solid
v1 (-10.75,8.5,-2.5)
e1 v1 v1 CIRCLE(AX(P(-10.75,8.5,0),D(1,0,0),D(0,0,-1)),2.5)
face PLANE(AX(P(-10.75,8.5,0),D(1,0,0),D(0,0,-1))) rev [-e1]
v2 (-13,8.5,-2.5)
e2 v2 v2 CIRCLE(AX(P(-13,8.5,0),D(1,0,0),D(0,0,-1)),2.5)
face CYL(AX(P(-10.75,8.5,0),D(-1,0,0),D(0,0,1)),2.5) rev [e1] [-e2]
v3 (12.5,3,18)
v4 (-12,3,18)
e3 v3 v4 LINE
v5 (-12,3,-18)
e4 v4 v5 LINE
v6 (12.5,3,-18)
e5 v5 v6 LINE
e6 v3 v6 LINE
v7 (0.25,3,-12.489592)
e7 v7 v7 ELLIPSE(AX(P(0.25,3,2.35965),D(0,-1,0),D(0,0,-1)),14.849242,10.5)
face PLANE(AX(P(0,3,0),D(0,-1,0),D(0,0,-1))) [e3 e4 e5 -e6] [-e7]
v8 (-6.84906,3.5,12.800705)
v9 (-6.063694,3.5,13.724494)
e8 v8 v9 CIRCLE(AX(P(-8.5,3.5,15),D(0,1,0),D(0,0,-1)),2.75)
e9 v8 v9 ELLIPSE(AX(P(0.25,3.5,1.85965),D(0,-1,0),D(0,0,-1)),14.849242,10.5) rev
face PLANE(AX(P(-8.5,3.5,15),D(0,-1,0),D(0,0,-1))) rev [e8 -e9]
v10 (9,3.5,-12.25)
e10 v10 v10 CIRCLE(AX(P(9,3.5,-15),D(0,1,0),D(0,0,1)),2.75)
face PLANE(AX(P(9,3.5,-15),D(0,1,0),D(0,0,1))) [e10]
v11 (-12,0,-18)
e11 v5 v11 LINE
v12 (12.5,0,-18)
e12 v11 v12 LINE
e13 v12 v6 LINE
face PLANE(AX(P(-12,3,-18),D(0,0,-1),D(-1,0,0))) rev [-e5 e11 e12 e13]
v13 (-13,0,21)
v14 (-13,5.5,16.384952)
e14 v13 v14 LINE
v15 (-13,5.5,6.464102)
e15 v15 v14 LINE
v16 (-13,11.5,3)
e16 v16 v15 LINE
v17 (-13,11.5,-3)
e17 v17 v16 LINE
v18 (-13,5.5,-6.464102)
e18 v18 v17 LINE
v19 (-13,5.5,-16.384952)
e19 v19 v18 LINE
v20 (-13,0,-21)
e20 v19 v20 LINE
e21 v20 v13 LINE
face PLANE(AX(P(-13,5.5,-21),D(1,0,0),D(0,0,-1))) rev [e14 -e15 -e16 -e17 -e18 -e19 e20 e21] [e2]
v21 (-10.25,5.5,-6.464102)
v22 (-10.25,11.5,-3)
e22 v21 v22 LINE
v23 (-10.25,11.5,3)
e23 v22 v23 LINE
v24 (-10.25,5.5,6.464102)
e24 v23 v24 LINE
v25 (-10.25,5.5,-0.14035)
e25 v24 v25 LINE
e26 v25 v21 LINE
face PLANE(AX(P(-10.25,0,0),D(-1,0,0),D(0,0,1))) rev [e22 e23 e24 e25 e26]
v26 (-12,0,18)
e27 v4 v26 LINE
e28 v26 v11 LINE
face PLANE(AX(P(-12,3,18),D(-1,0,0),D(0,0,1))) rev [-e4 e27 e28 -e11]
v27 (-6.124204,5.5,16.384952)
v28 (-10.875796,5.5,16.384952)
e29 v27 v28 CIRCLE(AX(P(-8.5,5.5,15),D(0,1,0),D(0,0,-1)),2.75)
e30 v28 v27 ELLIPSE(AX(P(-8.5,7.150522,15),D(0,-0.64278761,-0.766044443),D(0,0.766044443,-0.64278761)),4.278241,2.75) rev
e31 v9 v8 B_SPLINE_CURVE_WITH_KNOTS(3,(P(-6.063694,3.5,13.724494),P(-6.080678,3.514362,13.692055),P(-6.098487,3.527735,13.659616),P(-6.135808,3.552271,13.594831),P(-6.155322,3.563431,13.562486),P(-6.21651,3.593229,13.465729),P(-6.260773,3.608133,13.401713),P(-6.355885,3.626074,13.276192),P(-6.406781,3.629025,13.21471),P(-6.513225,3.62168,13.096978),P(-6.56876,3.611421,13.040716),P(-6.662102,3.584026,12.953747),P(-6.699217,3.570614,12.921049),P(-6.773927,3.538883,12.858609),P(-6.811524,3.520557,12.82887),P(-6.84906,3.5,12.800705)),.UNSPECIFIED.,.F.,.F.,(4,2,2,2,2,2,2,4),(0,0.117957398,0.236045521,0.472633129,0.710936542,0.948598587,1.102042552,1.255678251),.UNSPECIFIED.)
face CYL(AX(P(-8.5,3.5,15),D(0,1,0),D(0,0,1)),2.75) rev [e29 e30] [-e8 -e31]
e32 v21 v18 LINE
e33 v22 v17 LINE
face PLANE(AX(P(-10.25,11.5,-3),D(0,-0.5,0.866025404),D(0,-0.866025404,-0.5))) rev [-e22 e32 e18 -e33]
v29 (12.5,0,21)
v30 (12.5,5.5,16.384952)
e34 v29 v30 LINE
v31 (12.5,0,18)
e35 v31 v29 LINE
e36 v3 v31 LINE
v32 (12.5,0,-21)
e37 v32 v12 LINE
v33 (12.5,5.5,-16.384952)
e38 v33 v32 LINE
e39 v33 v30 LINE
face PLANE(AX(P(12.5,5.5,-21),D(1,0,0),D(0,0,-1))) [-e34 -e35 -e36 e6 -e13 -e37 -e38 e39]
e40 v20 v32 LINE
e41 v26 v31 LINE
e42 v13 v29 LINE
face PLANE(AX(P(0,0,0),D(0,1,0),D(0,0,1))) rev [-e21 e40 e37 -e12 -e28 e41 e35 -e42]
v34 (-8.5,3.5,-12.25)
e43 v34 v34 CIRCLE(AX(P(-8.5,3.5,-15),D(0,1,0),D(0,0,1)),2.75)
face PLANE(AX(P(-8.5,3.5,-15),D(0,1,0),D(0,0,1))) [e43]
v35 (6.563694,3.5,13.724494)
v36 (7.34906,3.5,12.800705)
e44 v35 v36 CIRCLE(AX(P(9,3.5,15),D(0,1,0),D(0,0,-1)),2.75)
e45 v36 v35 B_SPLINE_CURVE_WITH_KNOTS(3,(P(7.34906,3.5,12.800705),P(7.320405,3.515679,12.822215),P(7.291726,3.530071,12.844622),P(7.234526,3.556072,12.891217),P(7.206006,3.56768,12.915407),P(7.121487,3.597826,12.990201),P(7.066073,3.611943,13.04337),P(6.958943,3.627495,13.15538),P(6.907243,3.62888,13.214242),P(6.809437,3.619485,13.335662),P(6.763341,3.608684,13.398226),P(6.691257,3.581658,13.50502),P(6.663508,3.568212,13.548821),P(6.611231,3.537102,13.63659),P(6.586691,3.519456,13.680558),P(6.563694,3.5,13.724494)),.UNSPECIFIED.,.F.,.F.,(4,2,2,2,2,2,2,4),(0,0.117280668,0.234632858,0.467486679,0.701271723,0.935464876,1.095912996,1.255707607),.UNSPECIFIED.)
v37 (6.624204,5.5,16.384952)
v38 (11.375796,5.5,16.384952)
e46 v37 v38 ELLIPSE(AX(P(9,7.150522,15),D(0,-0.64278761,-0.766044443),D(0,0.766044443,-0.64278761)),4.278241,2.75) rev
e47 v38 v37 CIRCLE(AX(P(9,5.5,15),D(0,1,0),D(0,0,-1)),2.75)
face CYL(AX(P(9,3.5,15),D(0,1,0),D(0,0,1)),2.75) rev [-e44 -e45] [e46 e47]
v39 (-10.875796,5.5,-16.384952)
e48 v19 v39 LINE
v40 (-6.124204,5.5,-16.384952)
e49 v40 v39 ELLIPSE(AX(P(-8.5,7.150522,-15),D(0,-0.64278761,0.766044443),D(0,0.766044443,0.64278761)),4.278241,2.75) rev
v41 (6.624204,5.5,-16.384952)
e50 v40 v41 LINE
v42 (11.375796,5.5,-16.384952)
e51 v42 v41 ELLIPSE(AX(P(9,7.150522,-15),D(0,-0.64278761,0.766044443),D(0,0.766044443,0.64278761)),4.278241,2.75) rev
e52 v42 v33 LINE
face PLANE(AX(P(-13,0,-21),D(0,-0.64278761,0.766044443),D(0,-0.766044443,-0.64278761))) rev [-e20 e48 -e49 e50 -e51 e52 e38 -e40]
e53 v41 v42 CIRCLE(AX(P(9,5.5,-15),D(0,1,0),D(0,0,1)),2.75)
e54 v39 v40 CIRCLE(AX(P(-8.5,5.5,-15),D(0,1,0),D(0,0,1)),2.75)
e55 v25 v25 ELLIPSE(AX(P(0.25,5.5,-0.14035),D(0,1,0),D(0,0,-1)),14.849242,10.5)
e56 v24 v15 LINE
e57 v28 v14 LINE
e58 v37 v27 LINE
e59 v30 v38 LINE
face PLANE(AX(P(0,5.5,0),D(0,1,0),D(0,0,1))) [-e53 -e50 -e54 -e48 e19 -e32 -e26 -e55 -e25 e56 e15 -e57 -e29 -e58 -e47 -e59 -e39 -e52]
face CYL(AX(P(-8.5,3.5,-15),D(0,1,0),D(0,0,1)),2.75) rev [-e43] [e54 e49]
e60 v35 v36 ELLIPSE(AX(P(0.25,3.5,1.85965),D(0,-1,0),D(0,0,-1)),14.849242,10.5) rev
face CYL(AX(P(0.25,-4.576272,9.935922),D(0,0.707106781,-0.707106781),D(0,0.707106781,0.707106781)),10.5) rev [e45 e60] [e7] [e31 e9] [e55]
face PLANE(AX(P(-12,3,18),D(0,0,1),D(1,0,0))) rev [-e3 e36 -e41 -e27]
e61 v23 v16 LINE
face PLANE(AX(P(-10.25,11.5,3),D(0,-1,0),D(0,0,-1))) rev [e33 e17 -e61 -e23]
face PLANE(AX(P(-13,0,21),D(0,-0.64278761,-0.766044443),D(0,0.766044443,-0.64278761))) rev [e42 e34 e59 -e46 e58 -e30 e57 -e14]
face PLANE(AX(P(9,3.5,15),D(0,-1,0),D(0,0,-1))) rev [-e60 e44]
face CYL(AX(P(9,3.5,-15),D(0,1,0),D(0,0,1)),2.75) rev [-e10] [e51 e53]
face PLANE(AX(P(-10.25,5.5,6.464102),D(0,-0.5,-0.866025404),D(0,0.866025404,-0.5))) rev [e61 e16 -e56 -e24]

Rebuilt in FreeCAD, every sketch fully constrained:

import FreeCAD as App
import Part
import Sketcher
from FreeCAD import Vector
Q = App.Units.Quantity


def add_polygon(sketch, points):
    """Adds a closed chain of lines whose ends are joined by coincident constraints."""
    first, n = sketch.GeometryCount, len(points)
    for a, b in zip(points, points[1:] + points[:1]):
        sketch.addGeometry(Part.LineSegment(App.Vector(*a, 0), App.Vector(*b, 0)), False)
    for i in range(n):
        sketch.addConstraint(Sketcher.Constraint("Coincident", first + i, 2, first + (i + 1) % n, 1))

doc = App.newDocument("Part")
body = doc.addObject("PartDesign::Body", "Body")

sketch1 = body.newObject("Sketcher::SketchObject", "Sketch")
sketch1.AttachmentSupport = (doc.getObject("XZ_Plane"), [""])
sketch1.MapMode = "FlatFace"
add_polygon(sketch1, [(-13, -21), (-13, 21), (12.5, 21), (12.5, -21)])
sketch1.addConstraint(Sketcher.Constraint("Vertical", 0))
sketch1.addConstraint(Sketcher.Constraint("Horizontal", 1))
sketch1.addConstraint(Sketcher.Constraint("Vertical", 2))
sketch1.addConstraint(Sketcher.Constraint("Horizontal", 3))
sketch1.addConstraint(Sketcher.Constraint("DistanceY", 0, 1, 0, 2, Q("42 mm")))
sketch1.addConstraint(Sketcher.Constraint("DistanceX", 1, 1, 1, 2, Q("25.5 mm")))
sketch1.addConstraint(Sketcher.Constraint("DistanceX", 0, 2, -1, 1, Q("13 mm")))
sketch1.addConstraint(Sketcher.Constraint("DistanceY", -1, 1, 0, 2, Q("21 mm")))
pad1 = body.newObject("PartDesign::Pad", "Pad")
pad1.Profile = sketch1
pad1.Length = 5.5
pad1.Reversed = True

sketch2 = body.newObject("Sketcher::SketchObject", "Sketch001")
sketch2.AttachmentSupport = (doc.getObject("XZ_Plane"), [""])
sketch2.MapMode = "FlatFace"
add_polygon(sketch2, [(-12, 18), (-12, -18), (13, -18), (13, 18)])
sketch2.addConstraint(Sketcher.Constraint("Vertical", 0))
sketch2.addConstraint(Sketcher.Constraint("Horizontal", 1))
sketch2.addConstraint(Sketcher.Constraint("Vertical", 2))
sketch2.addConstraint(Sketcher.Constraint("Horizontal", 3))
sketch2.addConstraint(Sketcher.Constraint("DistanceX", 1, 1, 1, 2, Q("25 mm")))
sketch2.addConstraint(Sketcher.Constraint("DistanceY", 0, 2, 0, 1, Q("36 mm")))
sketch2.addConstraint(Sketcher.Constraint("DistanceX", 0, 2, -1, 1, Q("12 mm")))
sketch2.addConstraint(Sketcher.Constraint("DistanceY", 0, 2, -1, 1, Q("18 mm")))
pocket1 = body.newObject("PartDesign::Pocket", "Pocket")
pocket1.Profile = sketch2
pocket1.Length = 3

sketch3 = body.newObject("Sketcher::SketchObject", "Sketch002")
sketch3.Placement = App.Placement(Vector(0, 13.25, -13.25), App.Rotation(Vector(1, 0, 0), Vector(0, -0.707106781, -0.707106781), Vector(0, 0.707106781, -0.707106781), "ZXY"))
sketch3.addGeometry(Part.Circle(Vector(0.25, -3.789845, 0), Vector(0, 0, 1), 10.5), False)
sketch3.addConstraint(Sketcher.Constraint("Diameter", 0, Q("21 mm")))
sketch3.addConstraint(Sketcher.Constraint("DistanceX", -1, 1, 0, 3, Q("0.25 mm")))
sketch3.addConstraint(Sketcher.Constraint("DistanceY", 0, 3, -1, 1, Q("3.789845 mm")))
pocket2 = body.newObject("PartDesign::Pocket", "Pocket001")
pocket2.Profile = sketch3
pocket2.Length = 29

sketch4 = body.newObject("Sketcher::SketchObject", "Sketch003")
sketch4.AttachmentSupport = (doc.getObject("XZ_Plane"), [""])
sketch4.MapMode = "FlatFace"
sketch4.AttachmentOffset = App.Placement(Vector(0, 0, -5.5), App.Rotation())
sketch4.addGeometry(Part.Circle(Vector(-8.5, -15, 0), Vector(0, 0, 1), 2.75), False)
sketch4.addGeometry(Part.Circle(Vector(9, -15, 0), Vector(0, 0, 1), 2.75), False)
sketch4.addGeometry(Part.Circle(Vector(-8.5, 15, 0), Vector(0, 0, 1), 2.75), False)
sketch4.addGeometry(Part.Circle(Vector(9, 15, 0), Vector(0, 0, 1), 2.75), False)
sketch4.addConstraint(Sketcher.Constraint("Equal", 0, 1))
sketch4.addConstraint(Sketcher.Constraint("Equal", 1, 2))
sketch4.addConstraint(Sketcher.Constraint("Equal", 2, 3))
sketch4.addConstraint(Sketcher.Constraint("Symmetric", 0, 3, 2, 3, -1))
sketch4.addConstraint(Sketcher.Constraint("Symmetric", 1, 3, 3, 3, -1))
sketch4.addConstraint(Sketcher.Constraint("Horizontal", 0, 3, 1, 3))
sketch4.addConstraint(Sketcher.Constraint("Diameter", 0, Q("5.5 mm")))
sketch4.addConstraint(Sketcher.Constraint("DistanceY", 0, 3, -1, 1, Q("15 mm")))
sketch4.addConstraint(Sketcher.Constraint("DistanceX", -1, 1, 1, 3, Q("9 mm")))
sketch4.addConstraint(Sketcher.Constraint("DistanceX", 0, 3, -1, 1, Q("8.5 mm")))
pocket3 = body.newObject("PartDesign::Pocket", "Pocket002")
pocket3.Profile = sketch4
pocket3.Length = 2
pocket3.Reversed = True

sketch5 = body.newObject("Sketcher::SketchObject", "Sketch004")
sketch5.AttachmentSupport = (doc.getObject("YZ_Plane"), [""])
sketch5.MapMode = "FlatFace"
add_polygon(sketch5, [(0, 21), (9.744012, 12.823803), (9.744012, 21)])
sketch5.addConstraint(Sketcher.Constraint("Vertical", 1))
sketch5.addConstraint(Sketcher.Constraint("Horizontal", 2))
sketch5.addConstraint(Sketcher.Constraint("PointOnObject", 2, 2, -2))
sketch5.addConstraint(Sketcher.Constraint("Angle", 0, Q("-40 deg")))
sketch5.addConstraint(Sketcher.Constraint("DistanceY", -1, 1, 1, 2, Q("21 mm")))
sketch5.addConstraint(Sketcher.Constraint("DistanceX", 2, 2, 2, 1, Q("9.744012 mm")))
pocket4 = body.newObject("PartDesign::Pocket", "Pocket003")
pocket4.Profile = sketch5
pocket4.Type = "ThroughAll"
pocket4.Midplane = True

sketch6 = body.newObject("Sketcher::SketchObject", "Sketch005")
sketch6.AttachmentSupport = (doc.getObject("YZ_Plane"), [""])
sketch6.MapMode = "FlatFace"
sketch6.AttachmentOffset = App.Placement(Vector(0, 0, -13), App.Rotation())
add_polygon(sketch6, [(11.5, -3), (11.5, 3), (5.5, 6.464102), (5.5, -6.464102)])
sketch6.addConstraint(Sketcher.Constraint("Vertical", 0))
sketch6.addConstraint(Sketcher.Constraint("Vertical", 2))
sketch6.addConstraint(Sketcher.Constraint("Equal", 1, 3))
sketch6.addConstraint(Sketcher.Constraint("DistanceY", 0, 1, 0, 2, Q("6 mm")))
sketch6.addConstraint(Sketcher.Constraint("Angle", 1, Q("150 deg")))
sketch6.addConstraint(Sketcher.Constraint("DistanceY", -1, 1, 0, 2, Q("3 mm")))
sketch6.addConstraint(Sketcher.Constraint("DistanceX", 1, 2, 0, 2, Q("6 mm")))
sketch6.addConstraint(Sketcher.Constraint("DistanceX", -1, 1, 0, 2, Q("11.5 mm")))
pad2 = body.newObject("PartDesign::Pad", "Pad001")
pad2.Profile = sketch6
pad2.Length = 2.75

sketch7 = body.newObject("Sketcher::SketchObject", "Sketch006")
sketch7.AttachmentSupport = (doc.getObject("YZ_Plane"), [""])
sketch7.MapMode = "FlatFace"
sketch7.AttachmentOffset = App.Placement(Vector(0, 0, -13), App.Rotation())
sketch7.addGeometry(Part.Circle(Vector(8.5, 0, 0), Vector(0, 0, 1), 2.5), False)
sketch7.addConstraint(Sketcher.Constraint("PointOnObject", 0, 3, -1))
sketch7.addConstraint(Sketcher.Constraint("Diameter", 0, Q("5 mm")))
sketch7.addConstraint(Sketcher.Constraint("DistanceX", -1, 1, 0, 3, Q("8.5 mm")))
pocket5 = body.newObject("PartDesign::Pocket", "Pocket004")
pocket5.Profile = sketch7
pocket5.Length = 2.25
pocket5.Reversed = True

sketch8 = body.newObject("Sketcher::SketchObject", "Sketch007")
sketch8.AttachmentSupport = (doc.getObject("YZ_Plane"), [""])
sketch8.MapMode = "FlatFace"
add_polygon(sketch8, [(6, -15.965402), (0, -21), (6, -21)])
sketch8.addConstraint(Sketcher.Constraint("Horizontal", 1))
sketch8.addConstraint(Sketcher.Constraint("Vertical", 2))
sketch8.addConstraint(Sketcher.Constraint("PointOnObject", 0, 2, -2))
sketch8.addConstraint(Sketcher.Constraint("DistanceX", 1, 1, 1, 2, Q("6 mm")))
sketch8.addConstraint(Sketcher.Constraint("Angle", 0, Q("-140 deg")))
sketch8.addConstraint(Sketcher.Constraint("DistanceY", 0, 2, -1, 1, Q("21 mm")))
pocket6 = body.newObject("PartDesign::Pocket", "Pocket005")
pocket6.Profile = sketch8
pocket6.Type = "ThroughAll"
pocket6.Midplane = True

doc.recompute()
